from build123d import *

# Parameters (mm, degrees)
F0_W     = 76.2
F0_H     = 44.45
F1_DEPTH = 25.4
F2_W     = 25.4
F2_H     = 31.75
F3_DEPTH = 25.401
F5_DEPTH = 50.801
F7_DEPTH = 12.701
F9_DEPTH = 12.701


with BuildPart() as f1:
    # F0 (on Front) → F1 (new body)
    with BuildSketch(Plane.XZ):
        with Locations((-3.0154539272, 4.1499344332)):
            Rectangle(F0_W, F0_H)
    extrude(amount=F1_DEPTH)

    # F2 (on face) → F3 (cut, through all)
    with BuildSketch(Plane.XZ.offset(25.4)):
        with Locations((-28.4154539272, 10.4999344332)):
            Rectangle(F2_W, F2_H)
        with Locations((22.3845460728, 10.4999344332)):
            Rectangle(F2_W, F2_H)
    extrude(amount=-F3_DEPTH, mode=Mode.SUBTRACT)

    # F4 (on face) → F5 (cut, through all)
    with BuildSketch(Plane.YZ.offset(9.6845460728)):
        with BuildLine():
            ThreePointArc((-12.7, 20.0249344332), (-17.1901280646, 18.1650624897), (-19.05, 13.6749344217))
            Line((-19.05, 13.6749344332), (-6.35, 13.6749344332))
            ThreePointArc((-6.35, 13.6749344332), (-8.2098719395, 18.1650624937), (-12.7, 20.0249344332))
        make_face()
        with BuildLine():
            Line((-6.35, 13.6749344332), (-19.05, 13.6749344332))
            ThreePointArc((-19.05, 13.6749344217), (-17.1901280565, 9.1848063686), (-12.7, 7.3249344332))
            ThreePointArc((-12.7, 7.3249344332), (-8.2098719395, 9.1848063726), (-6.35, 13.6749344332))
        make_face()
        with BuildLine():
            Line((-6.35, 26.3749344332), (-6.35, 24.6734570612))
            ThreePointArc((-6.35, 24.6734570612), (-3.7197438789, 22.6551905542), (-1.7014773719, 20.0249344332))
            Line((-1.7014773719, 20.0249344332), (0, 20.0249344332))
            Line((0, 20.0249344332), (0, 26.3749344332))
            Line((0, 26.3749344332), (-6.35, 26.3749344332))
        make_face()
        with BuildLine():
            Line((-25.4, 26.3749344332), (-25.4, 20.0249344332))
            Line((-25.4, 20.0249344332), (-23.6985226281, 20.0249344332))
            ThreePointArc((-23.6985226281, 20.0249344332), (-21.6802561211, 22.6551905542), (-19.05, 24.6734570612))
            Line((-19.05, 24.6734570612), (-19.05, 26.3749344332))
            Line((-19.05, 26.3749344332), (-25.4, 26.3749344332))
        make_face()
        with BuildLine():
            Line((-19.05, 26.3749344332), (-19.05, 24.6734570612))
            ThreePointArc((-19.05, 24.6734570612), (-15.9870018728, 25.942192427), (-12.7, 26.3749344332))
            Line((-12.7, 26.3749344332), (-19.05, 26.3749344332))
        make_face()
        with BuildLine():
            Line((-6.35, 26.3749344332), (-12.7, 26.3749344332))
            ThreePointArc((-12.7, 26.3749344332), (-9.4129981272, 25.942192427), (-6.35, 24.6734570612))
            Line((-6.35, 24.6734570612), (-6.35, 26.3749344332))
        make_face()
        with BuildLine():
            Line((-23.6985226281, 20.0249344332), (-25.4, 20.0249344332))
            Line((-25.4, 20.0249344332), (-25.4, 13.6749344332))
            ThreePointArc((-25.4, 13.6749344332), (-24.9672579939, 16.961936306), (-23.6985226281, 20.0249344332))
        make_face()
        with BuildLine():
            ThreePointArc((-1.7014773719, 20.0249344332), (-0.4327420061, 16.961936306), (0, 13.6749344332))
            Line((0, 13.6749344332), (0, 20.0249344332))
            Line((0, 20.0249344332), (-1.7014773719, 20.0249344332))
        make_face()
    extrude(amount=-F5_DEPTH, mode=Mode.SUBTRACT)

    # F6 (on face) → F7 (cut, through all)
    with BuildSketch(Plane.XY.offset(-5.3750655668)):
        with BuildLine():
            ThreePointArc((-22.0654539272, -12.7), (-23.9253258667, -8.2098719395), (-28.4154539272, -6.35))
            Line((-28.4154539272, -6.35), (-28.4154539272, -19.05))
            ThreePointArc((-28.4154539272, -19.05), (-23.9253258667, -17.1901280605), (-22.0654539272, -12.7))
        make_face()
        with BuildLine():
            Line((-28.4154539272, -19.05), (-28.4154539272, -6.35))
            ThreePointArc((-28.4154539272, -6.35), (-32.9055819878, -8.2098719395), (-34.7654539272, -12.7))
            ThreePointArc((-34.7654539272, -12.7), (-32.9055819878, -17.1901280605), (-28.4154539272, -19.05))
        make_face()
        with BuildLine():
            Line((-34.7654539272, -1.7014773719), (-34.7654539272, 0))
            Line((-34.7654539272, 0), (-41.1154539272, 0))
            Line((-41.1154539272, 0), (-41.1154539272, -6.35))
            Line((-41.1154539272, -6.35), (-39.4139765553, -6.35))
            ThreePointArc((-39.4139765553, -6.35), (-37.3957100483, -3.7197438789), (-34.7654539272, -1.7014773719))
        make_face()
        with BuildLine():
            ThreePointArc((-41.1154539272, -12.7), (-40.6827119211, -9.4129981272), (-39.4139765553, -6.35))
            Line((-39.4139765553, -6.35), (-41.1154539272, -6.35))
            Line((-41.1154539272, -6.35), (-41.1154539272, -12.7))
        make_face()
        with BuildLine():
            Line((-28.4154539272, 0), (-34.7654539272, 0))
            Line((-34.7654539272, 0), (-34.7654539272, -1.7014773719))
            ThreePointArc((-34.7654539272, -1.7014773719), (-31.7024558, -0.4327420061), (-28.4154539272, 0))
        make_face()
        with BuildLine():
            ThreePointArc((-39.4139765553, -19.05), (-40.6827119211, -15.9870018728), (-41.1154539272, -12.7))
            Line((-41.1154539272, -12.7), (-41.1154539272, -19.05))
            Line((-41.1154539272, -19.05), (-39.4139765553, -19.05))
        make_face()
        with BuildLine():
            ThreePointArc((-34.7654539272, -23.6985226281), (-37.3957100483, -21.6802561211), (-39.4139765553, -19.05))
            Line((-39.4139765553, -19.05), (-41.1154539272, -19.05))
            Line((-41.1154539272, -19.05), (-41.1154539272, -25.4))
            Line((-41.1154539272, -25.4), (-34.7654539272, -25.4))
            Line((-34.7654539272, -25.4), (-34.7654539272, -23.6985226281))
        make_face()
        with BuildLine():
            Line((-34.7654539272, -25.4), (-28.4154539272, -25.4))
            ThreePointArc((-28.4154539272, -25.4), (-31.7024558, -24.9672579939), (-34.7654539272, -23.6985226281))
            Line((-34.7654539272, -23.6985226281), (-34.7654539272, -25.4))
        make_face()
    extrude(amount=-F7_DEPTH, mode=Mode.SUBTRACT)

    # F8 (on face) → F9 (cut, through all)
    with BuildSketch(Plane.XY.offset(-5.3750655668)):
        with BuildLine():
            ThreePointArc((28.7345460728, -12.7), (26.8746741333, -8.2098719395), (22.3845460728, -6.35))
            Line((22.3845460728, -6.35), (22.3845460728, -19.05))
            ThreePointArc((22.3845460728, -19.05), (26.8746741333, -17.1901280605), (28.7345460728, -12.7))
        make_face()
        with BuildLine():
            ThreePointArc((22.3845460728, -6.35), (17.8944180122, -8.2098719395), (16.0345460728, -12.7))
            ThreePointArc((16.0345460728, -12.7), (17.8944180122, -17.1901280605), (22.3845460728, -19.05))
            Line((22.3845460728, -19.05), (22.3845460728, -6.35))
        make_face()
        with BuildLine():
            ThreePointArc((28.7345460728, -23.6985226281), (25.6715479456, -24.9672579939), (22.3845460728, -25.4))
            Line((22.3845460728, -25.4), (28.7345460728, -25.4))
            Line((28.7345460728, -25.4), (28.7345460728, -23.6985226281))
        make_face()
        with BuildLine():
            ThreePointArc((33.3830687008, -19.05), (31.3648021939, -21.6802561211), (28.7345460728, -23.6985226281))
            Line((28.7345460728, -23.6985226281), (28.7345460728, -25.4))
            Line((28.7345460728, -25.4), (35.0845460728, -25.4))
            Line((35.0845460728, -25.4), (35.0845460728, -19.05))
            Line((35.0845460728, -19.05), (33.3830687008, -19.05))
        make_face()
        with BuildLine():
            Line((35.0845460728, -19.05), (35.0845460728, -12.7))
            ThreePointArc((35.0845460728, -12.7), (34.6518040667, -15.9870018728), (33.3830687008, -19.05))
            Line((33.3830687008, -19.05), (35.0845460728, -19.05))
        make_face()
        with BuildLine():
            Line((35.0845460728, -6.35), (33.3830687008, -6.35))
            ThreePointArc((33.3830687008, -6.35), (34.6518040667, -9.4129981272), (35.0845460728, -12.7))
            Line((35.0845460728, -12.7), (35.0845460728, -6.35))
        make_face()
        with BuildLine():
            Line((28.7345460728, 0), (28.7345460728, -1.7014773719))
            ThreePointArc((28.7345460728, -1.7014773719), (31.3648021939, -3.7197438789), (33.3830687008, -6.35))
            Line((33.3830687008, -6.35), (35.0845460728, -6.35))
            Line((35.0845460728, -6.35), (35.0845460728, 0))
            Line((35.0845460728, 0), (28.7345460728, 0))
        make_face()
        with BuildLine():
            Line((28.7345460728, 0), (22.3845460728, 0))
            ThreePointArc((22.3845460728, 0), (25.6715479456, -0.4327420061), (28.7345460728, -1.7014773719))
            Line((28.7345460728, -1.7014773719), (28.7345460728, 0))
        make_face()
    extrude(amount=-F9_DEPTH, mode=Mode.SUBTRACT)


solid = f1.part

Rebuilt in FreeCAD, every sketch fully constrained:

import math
import FreeCAD as App
import Part
import Sketcher

V = App.Vector
Q = App.Units.Quantity

doc = App.newDocument("Part")
params = doc.addObject("Spreadsheet::Sheet", "Params")
for row, (alias, value) in enumerate([
    ("sketch1_width", "3 in"),
    ("sketch1_height", "1.75 in"),
    ("pad1_length", "1 in"),
    ("sketch2_width", "1 in"),
    ("sketch2_height", "1.25 in"),
    ("sketch3_radius", "0.5 in"),
    ("sketch3_radius2", "0.25 in"),
    ("sketch4_radius", "0.5 in"),
    ("sketch4_radius2", "0.25 in"),
    ("sketch5_radius", "0.5 in"),
    ("sketch5_radius2", "0.25 in"),
], start=1):
    params.set(f"A{row}", alias)
    params.set(f"B{row}", "=" + value)
    params.setAlias(f"B{row}", alias)

body = doc.addObject("PartDesign::Body", "Body")

# Sketch on XZ plane
sketch1 = doc.addObject("Sketcher::SketchObject", "Sketch")
body.addObject(sketch1)
sketch1.AttachmentSupport = (doc.XZ_Plane, [""])
sketch1.MapMode = "FlatFace"
sketch1.addGeometry([
    Part.LineSegment(V(-41, 26, 0), V(-41, -18, 0)),
    Part.LineSegment(V(-41, -18, 0), V(35, -18, 0)),
    Part.LineSegment(V(35, -18, 0), V(35, 26, 0)),
    Part.LineSegment(V(35, 26, 0), V(-41, 26, 0)),
], False)
sketch1.addConstraint([
    Sketcher.Constraint("Coincident", 0, 2, 1, 1),
    Sketcher.Constraint("Coincident", 1, 2, 2, 1),
    Sketcher.Constraint("Coincident", 2, 2, 3, 1),
    Sketcher.Constraint("Coincident", 3, 2, 0, 1),
    Sketcher.Constraint("Vertical", 0),
    Sketcher.Constraint("Horizontal", 1),
    Sketcher.Constraint("Vertical", 2),
    Sketcher.Constraint("Horizontal", 3),
    Sketcher.Constraint("DistanceX", 1, 1, 1, 2, Q("3 in")),
    Sketcher.Constraint("DistanceY", 0, 2, 0, 1, Q("1.75 in")),
    Sketcher.Constraint("DistanceX", 0, 2, -1, 1, 41.115454),
    Sketcher.Constraint("DistanceY", 0, 2, -1, 1, 18.075066),
])
sketch1.setExpression("Constraints[8]", "Params.sketch1_width")
sketch1.setExpression("Constraints[9]", "Params.sketch1_height")
pad1 = doc.addObject("PartDesign::Pad", "Pad")
body.addObject(pad1)
pad1.Profile = sketch1
pad1.setExpression("Length", "Params.pad1_length")

# Sketch on XZ plane
sketch2 = doc.addObject("Sketcher::SketchObject", "Sketch001")
body.addObject(sketch2)
sketch2.AttachmentSupport = (doc.XZ_Plane, [""])
sketch2.MapMode = "FlatFace"
sketch2.AttachmentOffset = App.Placement(V(0, 0, 1 * 25.4), App.Rotation())
sketch2.addGeometry([
    Part.LineSegment(V(-41, 26, 0), V(-41, -5, 0)),  # 0
    Part.LineSegment(V(-41, -5, 0), V(-16, -5, 0)),  # 1
    Part.LineSegment(V(-16, -5, 0), V(-16, 26, 0)),  # 2
    Part.LineSegment(V(-16, 26, 0), V(-41, 26, 0)),  # 3
    Part.LineSegment(V(10, 26, 0), V(10, -5, 0)),  # 4
    Part.LineSegment(V(10, -5, 0), V(35, -5, 0)),  # 5
    Part.LineSegment(V(35, -5, 0), V(35, 26, 0)),  # 6
    Part.LineSegment(V(35, 26, 0), V(10, 26, 0)),  # 7
], False)
sketch2.addConstraint([
    Sketcher.Constraint("Coincident", 0, 2, 1, 1),
    Sketcher.Constraint("Coincident", 1, 2, 2, 1),
    Sketcher.Constraint("Coincident", 2, 2, 3, 1),
    Sketcher.Constraint("Coincident", 3, 2, 0, 1),
    Sketcher.Constraint("Coincident", 4, 2, 5, 1),
    Sketcher.Constraint("Coincident", 5, 2, 6, 1),
    Sketcher.Constraint("Coincident", 6, 2, 7, 1),
    Sketcher.Constraint("Coincident", 7, 2, 4, 1),
    Sketcher.Constraint("Vertical", 0),
    Sketcher.Constraint("Horizontal", 1),
    Sketcher.Constraint("Vertical", 2),
    Sketcher.Constraint("Horizontal", 3),
    Sketcher.Constraint("Vertical", 4),
    Sketcher.Constraint("Horizontal", 5),
    Sketcher.Constraint("Vertical", 6),
    Sketcher.Constraint("Horizontal", 7),
    Sketcher.Constraint("Horizontal", 1, 2, 4, 2),
    Sketcher.Constraint("Horizontal", 3, 2, 6, 2),
    Sketcher.Constraint("Equal", 3, 5),
    Sketcher.Constraint("DistanceX", 1, 1, 1, 2, Q("1 in")),
    Sketcher.Constraint("DistanceX", 1, 2, 4, 2, Q("1 in")),
    Sketcher.Constraint("DistanceY", 0, 2, 0, 1, Q("1.25 in")),
    Sketcher.Constraint("DistanceX", 0, 2, -1, 1, 41.115454),
    Sketcher.Constraint("DistanceY", 0, 2, -1, 1, 5.375066),
])
sketch2.setExpression("Constraints[19]", "Params.sketch2_width")
sketch2.setExpression("Constraints[21]", "Params.sketch2_height")
pocket1 = doc.addObject("PartDesign::Pocket", "Pocket")
body.addObject(pocket1)
pocket1.Profile = sketch2
pocket1.Type = "ThroughAll"

# Sketch on YZ plane
sketch3 = doc.addObject("Sketcher::SketchObject", "Sketch002")
body.addObject(sketch3)
sketch3.AttachmentSupport = (doc.YZ_Plane, [""])
sketch3.MapMode = "FlatFace"
sketch3.AttachmentOffset = App.Placement(V(0, 0, 9.684546), App.Rotation())
sketch3.addGeometry([
    Part.ArcOfCircle(Part.Circle(V(-13, 14, 0), V(0, 0, 1), 6), math.radians(90), math.radians(180)),  # 0
    Part.ArcOfCircle(Part.Circle(V(-13, 14, 0), V(0, 0, 1), 6), math.radians(-180), math.radians(-90)),  # 1
    Part.ArcOfCircle(Part.Circle(V(-13, 14, 0), V(0, 0, 1), 6), math.radians(-90), math.radians(0)),  # 2
    Part.ArcOfCircle(Part.Circle(V(-13, 14, 0), V(0, 0, 1), 6), math.radians(0), math.radians(90)),  # 3
    Part.ArcOfCircle(Part.Circle(V(-13, 14, 0), V(0, 0, 1), 13), math.radians(30), math.radians(60)),  # 4
    Part.ArcOfCircle(Part.Circle(V(-13, 14, 0), V(0, 0, 1), 13), math.radians(0), math.radians(30)),  # 5
    Part.LineSegment(V(0, 14, 0), V(0, 26, 0)),  # 6
    Part.LineSegment(V(0, 26, 0), V(-13, 26, 0)),  # 7
    Part.ArcOfCircle(Part.Circle(V(-13, 14, 0), V(0, 0, 1), 13), math.radians(60), math.radians(90)),  # 8
    Part.LineSegment(V(-25, 26, 0), V(-25, 14, 0)),  # 9
    Part.ArcOfCircle(Part.Circle(V(-13, 14, 0), V(0, 0, 1), 13), math.radians(150), math.radians(180)),  # 10
    Part.ArcOfCircle(Part.Circle(V(-13, 14, 0), V(0, 0, 1), 13), math.radians(120), math.radians(150)),  # 11
    Part.ArcOfCircle(Part.Circle(V(-13, 14, 0), V(0, 0, 1), 13), math.radians(90), math.radians(120)),  # 12
    Part.LineSegment(V(-13, 26, 0), V(-25, 26, 0)),  # 13
], False)
sketch3.addConstraint([
    Sketcher.Constraint("Tangent", 0, 2, 1, 1),
    Sketcher.Constraint("Tangent", 1, 2, 2, 1),
    Sketcher.Constraint("Tangent", 2, 2, 3, 1),
    Sketcher.Constraint("Tangent", 3, 2, 0, 1),
    Sketcher.Constraint("Tangent", 4, 1, 5, 2),
    Sketcher.Constraint("Tangent", 5, 1, 6, 1),
    Sketcher.Constraint("Coincident", 6, 2, 7, 1),
    Sketcher.Constraint("Tangent", 7, 2, 8, 2),
    Sketcher.Constraint("Tangent", 8, 1, 4, 2),
    Sketcher.Constraint("Tangent", 9, 2, 10, 2),
    Sketcher.Constraint("Tangent", 10, 1, 11, 2),
    Sketcher.Constraint("Tangent", 11, 1, 12, 2),
    Sketcher.Constraint("Tangent", 12, 1, 13, 1),
    Sketcher.Constraint("Coincident", 13, 2, 9, 1),
    Sketcher.Constraint("Vertical", 6),
    Sketcher.Constraint("Horizontal", 7),
    Sketcher.Constraint("Vertical", 9),
    Sketcher.Constraint("Horizontal", 13),
    Sketcher.Constraint("Coincident", 4, 3, 0, 3),
    Sketcher.Constraint("Coincident", 10, 3, 0, 3),
    Sketcher.Constraint("Coincident", 12, 3, 0, 3),
    Sketcher.Constraint("Coincident", 12, 1, 7, 2),
    Sketcher.Constraint("Equal", 0, 1),
    Sketcher.Constraint("Equal", 4, 5),
    Sketcher.Constraint("PointOnObject", 5, 1, -2),
    Sketcher.Constraint("Horizontal", 12, 3, 0, 2),
    Sketcher.Constraint("Horizontal", 0, 2, 2, 2),
    Sketcher.Constraint("Horizontal", 3, 2, 4, 1),
    Sketcher.Constraint("Horizontal", 4, 1, 10, 1),
    Sketcher.Constraint("Horizontal", 8, 1, 11, 1),
    Sketcher.Constraint("Vertical", 12, 3, 1, 2),
    Sketcher.Constraint("Vertical", 1, 2, 3, 2),
    Sketcher.Constraint("Vertical", 2, 2, 8, 1),
    Sketcher.Constraint("Radius", 4, Q("0.5 in")),
    Sketcher.Constraint("Radius", 0, Q("0.25 in")),
    Sketcher.Constraint("DistanceY", -1, 1, 0, 3, 13.674934),
])
sketch3.setExpression("Constraints[33]", "Params.sketch3_radius")
sketch3.setExpression("Constraints[34]", "Params.sketch3_radius2")
pocket2 = doc.addObject("PartDesign::Pocket", "Pocket001")
body.addObject(pocket2)
pocket2.Profile = sketch3
pocket2.Type = "ThroughAll"

# Sketch on XY plane
sketch4 = doc.addObject("Sketcher::SketchObject", "Sketch003")
body.addObject(sketch4)
sketch4.AttachmentSupport = (doc.XY_Plane, [""])
sketch4.MapMode = "FlatFace"
sketch4.AttachmentOffset = App.Placement(V(0, 0, -5.375066), App.Rotation())
sketch4.addGeometry([
    Part.ArcOfCircle(Part.Circle(V(-28, -13, 0), V(0, 0, 1), 6), math.radians(0), math.radians(90)),  # 0
    Part.ArcOfCircle(Part.Circle(V(-28, -13, 0), V(0, 0, 1), 6), math.radians(90), math.radians(180)),  # 1
    Part.ArcOfCircle(Part.Circle(V(-28, -13, 0), V(0, 0, 1), 6), math.radians(180), math.radians(270)),  # 2
    Part.ArcOfCircle(Part.Circle(V(-28, -13, 0), V(0, 0, 1), 6), math.radians(-90), math.radians(0)),  # 3
    Part.LineSegment(V(-41, 0, 0), V(-41, -13, 0)),  # 4
    Part.ArcOfCircle(Part.Circle(V(-28, -13, 0), V(0, 0, 1), 13), math.radians(150), math.radians(180)),  # 5
    Part.ArcOfCircle(Part.Circle(V(-28, -13, 0), V(0, 0, 1), 13), math.radians(120), math.radians(150)),  # 6
    Part.ArcOfCircle(Part.Circle(V(-28, -13, 0), V(0, 0, 1), 13), math.radians(90), math.radians(120)),  # 7
    Part.LineSegment(V(-28, 0, 0), V(-41, 0, 0)),  # 8
    Part.ArcOfCircle(Part.Circle(V(-28, -13, 0), V(0, 0, 1), 13), math.radians(180), math.radians(210)),  # 9
    Part.LineSegment(V(-41, -13, 0), V(-41, -25, 0)),  # 10
    Part.LineSegment(V(-41, -25, 0), V(-28, -25, 0)),  # 11
    Part.ArcOfCircle(Part.Circle(V(-28, -13, 0), V(0, 0, 1), 13), math.radians(-120), math.radians(-90)),  # 12
    Part.ArcOfCircle(Part.Circle(V(-28, -13, 0), V(0, 0, 1), 13), math.radians(-150), math.radians(-120)),  # 13
], False)
sketch4.addConstraint([
    Sketcher.Constraint("Tangent", 0, 2, 1, 1),
    Sketcher.Constraint("Tangent", 1, 2, 2, 1),
    Sketcher.Constraint("Tangent", 2, 2, 3, 1),
    Sketcher.Constraint("Tangent", 3, 2, 0, 1),
    Sketcher.Constraint("Tangent", 4, 2, 5, 2),
    Sketcher.Constraint("Tangent", 5, 1, 6, 2),
    Sketcher.Constraint("Tangent", 6, 1, 7, 2),
    Sketcher.Constraint("Tangent", 7, 1, 8, 1),
    Sketcher.Constraint("Coincident", 8, 2, 4, 1),
    Sketcher.Constraint("Tangent", 9, 1, 10, 1),
    Sketcher.Constraint("Coincident", 10, 2, 11, 1),
    Sketcher.Constraint("Tangent", 11, 2, 12, 2),
    Sketcher.Constraint("Tangent", 12, 1, 13, 2),
    Sketcher.Constraint("Tangent", 13, 1, 9, 2),
    Sketcher.Constraint("Vertical", 4),
    Sketcher.Constraint("Horizontal", 8),
    Sketcher.Constraint("Vertical", 10),
    Sketcher.Constraint("Horizontal", 11),
    Sketcher.Constraint("Coincident", 5, 3, 0, 3),
    Sketcher.Constraint("Coincident", 7, 3, 0, 3),
    Sketcher.Constraint("Coincident", 9, 3, 0, 3),
    Sketcher.Constraint("Coincident", 12, 3, 0, 3),
    Sketcher.Constraint("Equal", 0, 1),
    Sketcher.Constraint("Equal", 7, 9),
    Sketcher.Constraint("PointOnObject", 7, 1, -1),
    Sketcher.Constraint("Horizontal", 13, 3, 1, 2),
    Sketcher.Constraint("Horizontal", 1, 2, 3, 2),
    Sketcher.Constraint("Horizontal", 0, 2, 5, 1),
    Sketcher.Constraint("Horizontal", 2, 2, 13, 1),
    Sketcher.Constraint("Vertical", 13, 3, 0, 2),
    Sketcher.Constraint("Vertical", 0, 2, 2, 2),
    Sketcher.Constraint("Vertical", 1, 2, 6, 1),
    Sketcher.Constraint("Vertical", 6, 1, 12, 1),
    Sketcher.Constraint("Radius", 5, Q("0.5 in")),
    Sketcher.Constraint("Radius", 0, Q("0.25 in")),
    Sketcher.Constraint("DistanceX", 0, 3, -1, 1, 28.415454),
])
sketch4.setExpression("Constraints[33]", "Params.sketch4_radius")
sketch4.setExpression("Constraints[34]", "Params.sketch4_radius2")
pocket3 = doc.addObject("PartDesign::Pocket", "Pocket002")
body.addObject(pocket3)
pocket3.Profile = sketch4
pocket3.Type = "ThroughAll"

# Sketch on XY plane
sketch5 = doc.addObject("Sketcher::SketchObject", "Sketch004")
body.addObject(sketch5)
sketch5.AttachmentSupport = (doc.XY_Plane, [""])
sketch5.MapMode = "FlatFace"
sketch5.AttachmentOffset = App.Placement(V(0, 0, -5.375066), App.Rotation())
sketch5.addGeometry([
    Part.ArcOfCircle(Part.Circle(V(22, -13, 0), V(0, 0, 1), 6), math.radians(0), math.radians(90)),  # 0
    Part.ArcOfCircle(Part.Circle(V(22, -13, 0), V(0, 0, 1), 6), math.radians(90), math.radians(180)),  # 1
    Part.ArcOfCircle(Part.Circle(V(22, -13, 0), V(0, 0, 1), 6), math.radians(180), math.radians(270)),  # 2
    Part.ArcOfCircle(Part.Circle(V(22, -13, 0), V(0, 0, 1), 6), math.radians(-90), math.radians(0)),  # 3
    Part.ArcOfCircle(Part.Circle(V(22, -13, 0), V(0, 0, 1), 13), math.radians(-90), math.radians(-60)),  # 4
    Part.LineSegment(V(22, -25, 0), V(35, -25, 0)),  # 5
    Part.LineSegment(V(35, -25, 0), V(35, -13, 0)),  # 6
    Part.ArcOfCircle(Part.Circle(V(22, -13, 0), V(0, 0, 1), 13), math.radians(-30), math.radians(0)),  # 7
    Part.ArcOfCircle(Part.Circle(V(22, -13, 0), V(0, 0, 1), 13), math.radians(-60), math.radians(-30)),  # 8
    Part.ArcOfCircle(Part.Circle(V(22, -13, 0), V(0, 0, 1), 13), math.radians(0), math.radians(30)),  # 9
    Part.LineSegment(V(35, -13, 0), V(35, 0, 0)),  # 10
    Part.LineSegment(V(35, 0, 0), V(22, 0, 0)),  # 11
    Part.ArcOfCircle(Part.Circle(V(22, -13, 0), V(0, 0, 1), 13), math.radians(60), math.radians(90)),  # 12
    Part.ArcOfCircle(Part.Circle(V(22, -13, 0), V(0, 0, 1), 13), math.radians(30), math.radians(60)),  # 13
], False)
sketch5.addConstraint([
    Sketcher.Constraint("Tangent", 0, 2, 1, 1),
    Sketcher.Constraint("Tangent", 1, 2, 2, 1),
    Sketcher.Constraint("Tangent", 2, 2, 3, 1),
    Sketcher.Constraint("Tangent", 3, 2, 0, 1),
    Sketcher.Constraint("Tangent", 4, 1, 5, 1),
    Sketcher.Constraint("Coincident", 5, 2, 6, 1),
    Sketcher.Constraint("Tangent", 6, 2, 7, 2),
    Sketcher.Constraint("Tangent", 7, 1, 8, 2),
    Sketcher.Constraint("Tangent", 8, 1, 4, 2),
    Sketcher.Constraint("Tangent", 9, 1, 10, 1),
    Sketcher.Constraint("Coincident", 10, 2, 11, 1),
    Sketcher.Constraint("Tangent", 11, 2, 12, 2),
    Sketcher.Constraint("Tangent", 12, 1, 13, 2),
    Sketcher.Constraint("Tangent", 13, 1, 9, 2),
    Sketcher.Constraint("Horizontal", 5),
    Sketcher.Constraint("Vertical", 6),
    Sketcher.Constraint("Vertical", 10),
    Sketcher.Constraint("Horizontal", 11),
    Sketcher.Constraint("Coincident", 4, 3, 0, 3),
    Sketcher.Constraint("Coincident", 7, 3, 0, 3),
    Sketcher.Constraint("Coincident", 9, 3, 0, 3),
    Sketcher.Constraint("Coincident", 12, 3, 0, 3),
    Sketcher.Constraint("Equal", 0, 1),
    Sketcher.Constraint("Equal", 8, 9),
    Sketcher.Constraint("PointOnObject", 10, 2, -1),
    Sketcher.Constraint("Horizontal", 13, 3, 1, 2),
    Sketcher.Constraint("Horizontal", 1, 2, 3, 2),
    Sketcher.Constraint("Horizontal", 2, 2, 7, 1),
    Sketcher.Constraint("Horizontal", 0, 2, 13, 1),
    Sketcher.Constraint("Vertical", 13, 3, 0, 2),
    Sketcher.Constraint("Vertical", 0, 2, 2, 2),
    Sketcher.Constraint("Vertical", 3, 2, 8, 1),
    Sketcher.Constraint("Vertical", 8, 1, 12, 1),
    Sketcher.Constraint("Radius", 4, Q("0.5 in")),
    Sketcher.Constraint("Radius", 0, Q("0.25 in")),
    Sketcher.Constraint("DistanceX", -1, 1, 7, 1, 33.383069),
])
sketch5.setExpression("Constraints[33]", "Params.sketch5_radius")
sketch5.setExpression("Constraints[34]", "Params.sketch5_radius2")
pocket4 = doc.addObject("PartDesign::Pocket", "Pocket003")
body.addObject(pocket4)
pocket4.Profile = sketch5
pocket4.Type = "ThroughAll"

doc.recompute()
